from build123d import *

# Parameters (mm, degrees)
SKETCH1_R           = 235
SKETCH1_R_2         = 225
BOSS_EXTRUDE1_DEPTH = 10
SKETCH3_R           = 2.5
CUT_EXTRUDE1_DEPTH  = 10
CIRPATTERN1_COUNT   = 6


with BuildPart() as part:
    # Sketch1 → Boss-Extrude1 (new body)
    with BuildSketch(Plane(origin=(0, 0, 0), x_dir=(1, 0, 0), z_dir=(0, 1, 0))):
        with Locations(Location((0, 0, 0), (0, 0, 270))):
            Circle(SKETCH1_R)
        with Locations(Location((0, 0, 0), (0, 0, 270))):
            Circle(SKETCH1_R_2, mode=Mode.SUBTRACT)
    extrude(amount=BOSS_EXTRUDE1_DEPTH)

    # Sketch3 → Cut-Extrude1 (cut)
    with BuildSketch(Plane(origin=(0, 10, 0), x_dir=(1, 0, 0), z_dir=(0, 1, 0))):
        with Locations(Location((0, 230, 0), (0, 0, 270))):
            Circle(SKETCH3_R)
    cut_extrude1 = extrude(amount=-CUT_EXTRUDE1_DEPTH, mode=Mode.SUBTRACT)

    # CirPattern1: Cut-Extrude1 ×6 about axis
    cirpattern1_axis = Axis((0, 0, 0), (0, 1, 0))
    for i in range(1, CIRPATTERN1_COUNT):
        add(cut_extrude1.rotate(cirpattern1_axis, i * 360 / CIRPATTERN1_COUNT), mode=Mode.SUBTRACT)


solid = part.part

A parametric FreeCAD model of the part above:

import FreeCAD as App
import Part
import Sketcher
from FreeCAD import Vector
Q = App.Units.Quantity

doc = App.newDocument("Part")
body = doc.addObject("PartDesign::Body", "Body")

# Sketch on XZ plane
sketch1 = body.newObject("Sketcher::SketchObject", "Sketch")
sketch1.AttachmentSupport = (doc.getObject("XZ_Plane"), [""])
sketch1.MapMode = "FlatFace"
sketch1.addGeometry(Part.Circle(Vector(0, 0, 0), Vector(0, 0, 1), 235), False)
sketch1.addGeometry(Part.Circle(Vector(0, 0, 0), Vector(0, 0, 1), 225), False)
sketch1.addConstraint(Sketcher.Constraint("Coincident", 0, 3, -1, 1))
sketch1.addConstraint(Sketcher.Constraint("Coincident", 1, 3, -1, 1))
sketch1.addConstraint(Sketcher.Constraint("Diameter", 0, Q("470 mm")))
sketch1.addConstraint(Sketcher.Constraint("Diameter", 1, Q("450 mm")))
pad1 = body.newObject("PartDesign::Pad", "Pad")
pad1.Profile = sketch1
pad1.Length = 10
pad1.Reversed = True

# Sketch on XZ plane
sketch2 = body.newObject("Sketcher::SketchObject", "Sketch001")
sketch2.AttachmentSupport = (doc.getObject("XZ_Plane"), [""])
sketch2.MapMode = "FlatFace"
sketch2.AttachmentOffset = App.Placement(Vector(0, 0, -10), App.Rotation())
sketch2.addGeometry(Part.Circle(Vector(0, -230, 0), Vector(0, 0, 1), 2.5), False)
sketch2.addConstraint(Sketcher.Constraint("PointOnObject", 0, 3, -2))
sketch2.addConstraint(Sketcher.Constraint("Diameter", 0, Q("5 mm")))
sketch2.addConstraint(Sketcher.Constraint("DistanceY", 0, 3, -1, 1, Q("230 mm")))
pocket1 = body.newObject("PartDesign::Pocket", "Pocket")
pocket1.Profile = sketch2
pocket1.Length = 10
pocket1.Reversed = True
doc.recompute()

polarpattern = body.newObject("PartDesign::PolarPattern", "PolarPattern")
polarpattern.Originals = [pocket1]
polarpattern.Axis = (doc.getObject("Y_Axis"), [""])
polarpattern.Angle = 360
polarpattern.Occurrences = 6
body.Tip = polarpattern

doc.recompute()
